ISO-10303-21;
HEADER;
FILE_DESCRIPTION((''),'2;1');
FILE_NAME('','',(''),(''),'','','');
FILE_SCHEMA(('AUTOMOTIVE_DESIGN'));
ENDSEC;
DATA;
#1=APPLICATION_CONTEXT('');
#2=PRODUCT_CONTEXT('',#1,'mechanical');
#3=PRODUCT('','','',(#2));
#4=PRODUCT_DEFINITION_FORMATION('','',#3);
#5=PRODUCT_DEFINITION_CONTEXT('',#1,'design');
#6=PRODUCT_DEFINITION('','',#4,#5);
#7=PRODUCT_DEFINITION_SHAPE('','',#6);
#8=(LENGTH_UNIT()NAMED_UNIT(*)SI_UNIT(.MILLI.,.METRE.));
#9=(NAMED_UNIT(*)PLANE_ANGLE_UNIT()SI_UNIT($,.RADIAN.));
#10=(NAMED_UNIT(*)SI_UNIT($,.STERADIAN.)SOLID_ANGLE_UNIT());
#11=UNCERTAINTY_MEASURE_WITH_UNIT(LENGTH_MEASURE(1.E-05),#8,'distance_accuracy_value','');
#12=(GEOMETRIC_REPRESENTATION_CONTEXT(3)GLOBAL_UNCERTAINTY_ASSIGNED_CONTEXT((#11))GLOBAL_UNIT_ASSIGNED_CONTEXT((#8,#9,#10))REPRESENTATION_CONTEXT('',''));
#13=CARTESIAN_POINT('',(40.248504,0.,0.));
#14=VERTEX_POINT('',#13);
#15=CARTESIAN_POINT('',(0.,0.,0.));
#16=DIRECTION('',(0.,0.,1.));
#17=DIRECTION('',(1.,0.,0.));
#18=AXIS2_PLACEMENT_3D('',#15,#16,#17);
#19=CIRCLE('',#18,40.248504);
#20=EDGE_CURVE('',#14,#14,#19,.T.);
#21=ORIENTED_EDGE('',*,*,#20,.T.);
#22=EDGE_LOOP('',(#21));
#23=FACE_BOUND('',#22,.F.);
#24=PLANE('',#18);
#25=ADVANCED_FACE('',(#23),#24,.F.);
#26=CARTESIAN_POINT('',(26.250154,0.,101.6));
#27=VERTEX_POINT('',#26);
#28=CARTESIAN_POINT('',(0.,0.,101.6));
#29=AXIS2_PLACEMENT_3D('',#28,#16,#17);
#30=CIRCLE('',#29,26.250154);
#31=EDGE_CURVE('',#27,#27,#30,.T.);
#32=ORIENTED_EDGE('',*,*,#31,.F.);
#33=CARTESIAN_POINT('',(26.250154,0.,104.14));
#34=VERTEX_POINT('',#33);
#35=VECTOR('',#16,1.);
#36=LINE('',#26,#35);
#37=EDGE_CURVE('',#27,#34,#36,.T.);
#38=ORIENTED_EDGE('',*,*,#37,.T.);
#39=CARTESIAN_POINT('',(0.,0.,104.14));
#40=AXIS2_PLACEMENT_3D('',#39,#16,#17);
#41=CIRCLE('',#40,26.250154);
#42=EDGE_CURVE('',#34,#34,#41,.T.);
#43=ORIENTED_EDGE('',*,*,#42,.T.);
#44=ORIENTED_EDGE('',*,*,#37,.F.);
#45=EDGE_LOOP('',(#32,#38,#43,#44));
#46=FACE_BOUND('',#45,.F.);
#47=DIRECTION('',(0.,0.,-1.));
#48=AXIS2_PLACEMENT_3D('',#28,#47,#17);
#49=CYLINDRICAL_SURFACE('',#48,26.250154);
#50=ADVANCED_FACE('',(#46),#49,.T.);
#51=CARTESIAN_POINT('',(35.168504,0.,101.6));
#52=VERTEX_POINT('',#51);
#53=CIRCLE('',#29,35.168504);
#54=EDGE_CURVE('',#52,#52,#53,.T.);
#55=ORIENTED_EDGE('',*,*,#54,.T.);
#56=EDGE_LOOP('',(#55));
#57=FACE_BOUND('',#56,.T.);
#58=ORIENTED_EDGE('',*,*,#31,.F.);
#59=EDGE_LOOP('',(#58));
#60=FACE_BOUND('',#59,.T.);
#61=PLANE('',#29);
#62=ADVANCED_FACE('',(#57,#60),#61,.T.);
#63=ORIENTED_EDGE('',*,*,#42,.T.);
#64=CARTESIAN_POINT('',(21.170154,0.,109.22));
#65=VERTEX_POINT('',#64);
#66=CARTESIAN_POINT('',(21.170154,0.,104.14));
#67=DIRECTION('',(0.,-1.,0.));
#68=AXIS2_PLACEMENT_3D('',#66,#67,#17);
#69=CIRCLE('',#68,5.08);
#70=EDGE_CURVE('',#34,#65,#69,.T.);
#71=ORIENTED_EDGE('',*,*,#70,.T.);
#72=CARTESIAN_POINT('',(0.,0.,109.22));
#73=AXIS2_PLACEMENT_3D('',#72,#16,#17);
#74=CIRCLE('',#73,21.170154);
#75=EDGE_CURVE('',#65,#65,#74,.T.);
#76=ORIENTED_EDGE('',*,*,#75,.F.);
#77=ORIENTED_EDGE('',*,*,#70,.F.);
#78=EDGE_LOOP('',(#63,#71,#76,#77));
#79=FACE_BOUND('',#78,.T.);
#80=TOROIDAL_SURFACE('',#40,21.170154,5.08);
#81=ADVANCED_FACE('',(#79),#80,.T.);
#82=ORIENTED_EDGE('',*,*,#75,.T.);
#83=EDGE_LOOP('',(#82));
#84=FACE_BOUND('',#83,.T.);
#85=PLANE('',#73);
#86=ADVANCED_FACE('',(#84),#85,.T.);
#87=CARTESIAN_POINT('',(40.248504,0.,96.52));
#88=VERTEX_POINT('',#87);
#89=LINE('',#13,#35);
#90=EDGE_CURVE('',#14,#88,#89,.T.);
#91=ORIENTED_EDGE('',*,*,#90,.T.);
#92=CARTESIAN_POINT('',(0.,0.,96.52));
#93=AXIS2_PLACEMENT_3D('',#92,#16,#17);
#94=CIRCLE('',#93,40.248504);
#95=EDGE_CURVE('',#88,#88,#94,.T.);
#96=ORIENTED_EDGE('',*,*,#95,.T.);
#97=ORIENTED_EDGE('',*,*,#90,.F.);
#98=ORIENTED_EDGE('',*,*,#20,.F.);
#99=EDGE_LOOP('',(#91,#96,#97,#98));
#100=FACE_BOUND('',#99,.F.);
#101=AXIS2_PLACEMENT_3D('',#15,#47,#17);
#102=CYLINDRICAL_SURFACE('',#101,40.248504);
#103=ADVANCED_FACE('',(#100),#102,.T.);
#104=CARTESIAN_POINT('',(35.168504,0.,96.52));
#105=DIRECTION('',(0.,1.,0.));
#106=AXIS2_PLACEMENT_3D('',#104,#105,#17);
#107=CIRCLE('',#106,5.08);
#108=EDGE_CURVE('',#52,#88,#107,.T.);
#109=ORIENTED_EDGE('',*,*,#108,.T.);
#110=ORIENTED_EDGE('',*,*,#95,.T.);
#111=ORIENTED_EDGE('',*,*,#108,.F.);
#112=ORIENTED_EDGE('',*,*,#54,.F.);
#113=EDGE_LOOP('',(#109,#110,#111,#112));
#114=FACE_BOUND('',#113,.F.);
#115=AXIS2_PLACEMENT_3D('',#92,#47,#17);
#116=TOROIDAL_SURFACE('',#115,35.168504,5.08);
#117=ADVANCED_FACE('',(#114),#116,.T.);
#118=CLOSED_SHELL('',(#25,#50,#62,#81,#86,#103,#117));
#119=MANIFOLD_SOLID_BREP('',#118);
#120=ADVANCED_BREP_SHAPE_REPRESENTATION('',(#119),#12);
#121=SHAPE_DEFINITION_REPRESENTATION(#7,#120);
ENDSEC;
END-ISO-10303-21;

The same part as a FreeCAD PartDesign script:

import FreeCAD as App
import Part
import Sketcher
Q = App.Units.Quantity


def edges_at(feature, points):
    """Names of the edges that pass closest to the given points."""
    edges = feature.Shape.Edges
    near = lambda p: min(range(len(edges)), key=lambda i: edges[i].distToShape(Part.Vertex(*p))[0])
    return sorted({f"Edge{near(p) + 1}" for p in points})

doc = App.newDocument("Part")
body = doc.addObject("PartDesign::Body", "Body")

# Sketch on XY plane
sketch1 = body.newObject("Sketcher::SketchObject", "Sketch")
sketch1.AttachmentSupport = (doc.getObject("XY_Plane"), [""])
sketch1.MapMode = "FlatFace"
sketch1.addGeometry(Part.Circle(App.Vector(0, 0, 0), App.Vector(0, 0, 1), 40), False)
sketch1.addConstraint([
    Sketcher.Constraint("Coincident", 0, 3, -1, 1),
    Sketcher.Constraint("Diameter", 0, Q("80.497008 mm")),
])
pad1 = body.newObject("PartDesign::Pad", "Pad")
pad1.Profile = sketch1
pad1.Length = Q("4 in")

# Sketch on XY plane
sketch2 = body.newObject("Sketcher::SketchObject", "Sketch001")
sketch2.AttachmentSupport = (doc.getObject("XY_Plane"), [""])
sketch2.MapMode = "FlatFace"
sketch2.AttachmentOffset = App.Placement(App.Vector(0, 0, 4 * 25.4), App.Rotation())
sketch2.addGeometry(Part.Circle(App.Vector(0, 0, 0), App.Vector(0, 0, 1), 26), False)
sketch2.addConstraint([
    Sketcher.Constraint("Coincident", 0, 3, -1, 1),
    Sketcher.Constraint("Diameter", 0, Q("52.500308 mm")),
])
pad2 = body.newObject("PartDesign::Pad", "Pad001")
pad2.Profile = sketch2
pad2.Length = Q("0.3 in")
doc.recompute()

fillet = body.newObject("PartDesign::Fillet", "Fillet")
fillet.Base = (pad2, edges_at(pad2, [(-26.25, 0, 109.22)]))
fillet.Radius = Q("0.2 in")
doc.recompute()

fillet2 = body.newObject("PartDesign::Fillet", "Fillet001")
fillet2.Base = (fillet, edges_at(fillet, [(-40.249, 0, 101.6)]))
fillet2.Radius = Q("0.2 in")

doc.recompute()
